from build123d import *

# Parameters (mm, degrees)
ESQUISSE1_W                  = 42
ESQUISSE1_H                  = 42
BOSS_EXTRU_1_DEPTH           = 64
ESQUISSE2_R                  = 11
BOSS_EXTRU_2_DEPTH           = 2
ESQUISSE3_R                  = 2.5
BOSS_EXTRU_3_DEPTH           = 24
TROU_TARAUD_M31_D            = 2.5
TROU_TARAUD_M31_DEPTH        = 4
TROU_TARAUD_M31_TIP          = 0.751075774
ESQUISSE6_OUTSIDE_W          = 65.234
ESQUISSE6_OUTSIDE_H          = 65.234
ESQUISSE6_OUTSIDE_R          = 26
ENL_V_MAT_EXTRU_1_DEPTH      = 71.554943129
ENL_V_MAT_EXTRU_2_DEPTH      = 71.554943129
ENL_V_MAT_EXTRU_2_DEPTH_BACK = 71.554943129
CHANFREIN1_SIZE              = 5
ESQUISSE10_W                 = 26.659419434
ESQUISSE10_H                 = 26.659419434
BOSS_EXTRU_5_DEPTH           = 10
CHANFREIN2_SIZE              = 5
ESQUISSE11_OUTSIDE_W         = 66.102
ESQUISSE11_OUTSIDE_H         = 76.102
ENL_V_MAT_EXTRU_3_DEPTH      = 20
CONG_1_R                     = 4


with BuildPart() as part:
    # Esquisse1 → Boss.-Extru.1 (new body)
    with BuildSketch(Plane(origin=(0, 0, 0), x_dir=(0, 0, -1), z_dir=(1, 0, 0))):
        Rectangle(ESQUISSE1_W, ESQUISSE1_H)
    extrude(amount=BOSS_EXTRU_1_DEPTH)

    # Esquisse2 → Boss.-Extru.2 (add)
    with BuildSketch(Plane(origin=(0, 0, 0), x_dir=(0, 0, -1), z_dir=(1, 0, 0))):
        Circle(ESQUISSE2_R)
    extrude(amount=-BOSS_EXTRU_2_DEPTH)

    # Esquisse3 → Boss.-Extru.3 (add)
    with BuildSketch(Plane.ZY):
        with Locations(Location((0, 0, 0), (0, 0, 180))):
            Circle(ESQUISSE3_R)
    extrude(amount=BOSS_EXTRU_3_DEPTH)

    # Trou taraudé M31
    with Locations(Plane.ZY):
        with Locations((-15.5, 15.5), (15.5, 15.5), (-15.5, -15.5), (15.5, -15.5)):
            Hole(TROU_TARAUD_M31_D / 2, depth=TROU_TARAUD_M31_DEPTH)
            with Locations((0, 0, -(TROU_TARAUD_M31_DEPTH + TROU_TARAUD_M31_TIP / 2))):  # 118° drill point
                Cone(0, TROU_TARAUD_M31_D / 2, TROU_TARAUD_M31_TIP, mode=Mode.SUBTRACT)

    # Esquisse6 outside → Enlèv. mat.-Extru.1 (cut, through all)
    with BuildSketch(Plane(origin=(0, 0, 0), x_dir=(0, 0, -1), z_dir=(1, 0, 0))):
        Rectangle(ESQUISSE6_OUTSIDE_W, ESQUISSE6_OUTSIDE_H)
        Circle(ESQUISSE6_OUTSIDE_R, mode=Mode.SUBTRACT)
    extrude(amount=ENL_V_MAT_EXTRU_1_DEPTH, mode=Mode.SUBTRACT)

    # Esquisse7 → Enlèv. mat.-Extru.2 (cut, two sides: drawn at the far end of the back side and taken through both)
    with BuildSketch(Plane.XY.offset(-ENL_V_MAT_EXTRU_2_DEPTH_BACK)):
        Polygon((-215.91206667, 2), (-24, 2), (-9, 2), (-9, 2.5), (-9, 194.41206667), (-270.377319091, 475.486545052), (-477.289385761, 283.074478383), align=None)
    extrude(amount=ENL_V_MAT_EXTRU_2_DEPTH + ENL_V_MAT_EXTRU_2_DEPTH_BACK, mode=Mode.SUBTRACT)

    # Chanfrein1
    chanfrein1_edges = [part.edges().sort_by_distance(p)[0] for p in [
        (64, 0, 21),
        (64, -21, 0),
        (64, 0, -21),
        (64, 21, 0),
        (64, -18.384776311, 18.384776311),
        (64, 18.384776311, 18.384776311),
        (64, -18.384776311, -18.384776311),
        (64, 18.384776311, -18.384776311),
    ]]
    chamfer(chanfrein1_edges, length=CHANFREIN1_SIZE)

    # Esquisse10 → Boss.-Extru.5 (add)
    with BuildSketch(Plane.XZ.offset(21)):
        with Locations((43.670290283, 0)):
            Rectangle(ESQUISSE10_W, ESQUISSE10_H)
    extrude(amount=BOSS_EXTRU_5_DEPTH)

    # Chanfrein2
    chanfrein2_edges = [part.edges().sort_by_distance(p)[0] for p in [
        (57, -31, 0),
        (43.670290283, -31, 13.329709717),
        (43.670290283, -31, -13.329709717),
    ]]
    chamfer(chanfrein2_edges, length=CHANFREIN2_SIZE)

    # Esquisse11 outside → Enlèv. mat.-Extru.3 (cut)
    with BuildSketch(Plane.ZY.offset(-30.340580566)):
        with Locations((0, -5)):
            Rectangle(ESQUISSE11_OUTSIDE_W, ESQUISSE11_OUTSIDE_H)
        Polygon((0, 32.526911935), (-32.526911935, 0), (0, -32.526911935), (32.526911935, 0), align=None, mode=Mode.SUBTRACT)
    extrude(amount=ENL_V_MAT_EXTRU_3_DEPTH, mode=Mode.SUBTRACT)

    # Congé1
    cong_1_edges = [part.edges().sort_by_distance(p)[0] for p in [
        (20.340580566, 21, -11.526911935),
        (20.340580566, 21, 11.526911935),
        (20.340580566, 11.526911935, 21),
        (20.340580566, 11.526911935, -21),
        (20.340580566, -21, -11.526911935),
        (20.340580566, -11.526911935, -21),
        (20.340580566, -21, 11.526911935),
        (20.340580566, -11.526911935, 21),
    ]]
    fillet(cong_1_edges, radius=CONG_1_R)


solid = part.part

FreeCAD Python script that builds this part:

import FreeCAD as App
import Part
import Sketcher
from FreeCAD import Vector


def edges_at(feature, points):
    """Names of the edges that pass closest to the given points."""
    edges = feature.Shape.Edges
    near = lambda p: min(range(len(edges)), key=lambda i: edges[i].distToShape(Part.Vertex(*p))[0])
    return sorted({f"Edge{near(p) + 1}" for p in points})


def add_polygon(sketch, points):
    """Adds a closed chain of lines whose ends are joined by coincident constraints."""
    first, n = sketch.GeometryCount, len(points)
    for a, b in zip(points, points[1:] + points[:1]):
        sketch.addGeometry(Part.LineSegment(App.Vector(*a, 0), App.Vector(*b, 0)), False)
    for i in range(n):
        sketch.addConstraint(Sketcher.Constraint("Coincident", first + i, 2, first + (i + 1) % n, 1))

doc = App.newDocument("Part")
body = doc.addObject("PartDesign::Body", "Body")

sketch1 = doc.addObject("Sketcher::SketchObject", "Sketch")
body.addObject(sketch1)
sketch1.AttachmentSupport = (doc.YZ_Plane, [""])
sketch1.MapMode = "FlatFace"
add_polygon(sketch1, [(21, 21), (-21, 21), (-21, -21), (21, -21)])
sketch1.addConstraint([
    Sketcher.Constraint("Horizontal", 0),
    Sketcher.Constraint("Vertical", 1),
    Sketcher.Constraint("Horizontal", 2),
    Sketcher.Constraint("Vertical", 3),
    Sketcher.Constraint("Symmetric", 0, 2, 2, 2, -1, 1),
    Sketcher.Constraint("Equal", 2, 1),
    Sketcher.Constraint("DistanceX", 0, 2, 0, 1, 42.0),
])
pad1 = doc.addObject("PartDesign::Pad", "Pad")
body.addObject(pad1)
pad1.Profile = sketch1
pad1.Length = 64

sketch2 = doc.addObject("Sketcher::SketchObject", "Sketch001")
body.addObject(sketch2)
sketch2.AttachmentSupport = (doc.YZ_Plane, [""])
sketch2.MapMode = "FlatFace"
sketch2.addGeometry(Part.Circle(Vector(0, 0, 0), Vector(0, 0, 1), 11), False)
sketch2.addConstraint([
    Sketcher.Constraint("Coincident", 0, 3, -1, 1),
    Sketcher.Constraint("Diameter", 0, 22.0),
])
pad2 = doc.addObject("PartDesign::Pad", "Pad001")
body.addObject(pad2)
pad2.Profile = sketch2
pad2.Length = 2
pad2.Reversed = True

sketch3 = doc.addObject("Sketcher::SketchObject", "Sketch002")
body.addObject(sketch3)
sketch3.AttachmentSupport = (doc.YZ_Plane, [""])
sketch3.MapMode = "FlatFace"
sketch3.addGeometry(Part.Circle(Vector(0, 0, 0), Vector(0, 0, 1), 2.5), False)
sketch3.addConstraint([
    Sketcher.Constraint("Coincident", 0, 3, -1, 1),
    Sketcher.Constraint("Diameter", 0, 5.0),
])
pad3 = doc.addObject("PartDesign::Pad", "Pad002")
body.addObject(pad3)
pad3.Profile = sketch3
pad3.Length = 24
pad3.Reversed = True

sketch4 = doc.addObject("Sketcher::SketchObject", "Sketch003")
body.addObject(sketch4)
sketch4.AttachmentSupport = (doc.YZ_Plane, [""])
sketch4.MapMode = "FlatFace"
sketch4.addGeometry([
    Part.Circle(Vector(15.5, -15.5, 0), Vector(0, 0, 1), 1.25),
    Part.Circle(Vector(15.5, 15.5, 0), Vector(0, 0, 1), 1.25),
    Part.Circle(Vector(-15.5, -15.5, 0), Vector(0, 0, 1), 1.25),
    Part.Circle(Vector(-15.5, 15.5, 0), Vector(0, 0, 1), 1.25),
], False)
sketch4.addConstraint([
    Sketcher.Constraint("Equal", 0, 1),
    Sketcher.Constraint("Equal", 1, 2),
    Sketcher.Constraint("Equal", 2, 3),
    Sketcher.Constraint("Symmetric", 1, 3, 2, 3, -1, 1),
    Sketcher.Constraint("Symmetric", 0, 3, 3, 3, -1, 1),
    Sketcher.Constraint("Symmetric", 0, 3, 2, 3, -2),
    Sketcher.Constraint("Diameter", 0, 2.5),
    Sketcher.Constraint("DistanceY", 0, 3, 1, 3, 31.0),
    Sketcher.Constraint("DistanceX", 2, 3, 0, 3, 31.0),
])
doc.recompute()
hole = doc.addObject("PartDesign::Hole", "Hole")
body.addObject(hole)
hole.Profile = sketch4
hole.ThreadType = "None"
hole.Diameter = 2.5
hole.DepthType = "Dimension"
hole.Depth = 4
hole.DrillPoint = "Angled"
hole.DrillPointAngle = 118
hole.Reversed = True

sketch5 = doc.addObject("Sketcher::SketchObject", "Sketch004")
body.addObject(sketch5)
sketch5.AttachmentSupport = (doc.YZ_Plane, [""])
sketch5.MapMode = "FlatFace"
add_polygon(sketch5, [(32.617, 32.617), (-32.617, 32.617), (-32.617, -32.617), (32.617, -32.617)])
sketch5.addGeometry(Part.Circle(Vector(0, 0, 0), Vector(0, 0, 1), 26), False)
sketch5.addConstraint([
    Sketcher.Constraint("Horizontal", 0),
    Sketcher.Constraint("Vertical", 1),
    Sketcher.Constraint("Horizontal", 2),
    Sketcher.Constraint("Vertical", 3),
    Sketcher.Constraint("Coincident", 4, 3, -1, 1),
    Sketcher.Constraint("Symmetric", 0, 2, 2, 2, -1, 1),
    Sketcher.Constraint("Equal", 2, 1),
    Sketcher.Constraint("Diameter", 4, 52.0),
    Sketcher.Constraint("DistanceX", 0, 2, 0, 1, 65.234),
])
pocket1 = doc.addObject("PartDesign::Pocket", "Pocket")
body.addObject(pocket1)
pocket1.Profile = sketch5
pocket1.Type = "ThroughAll"
pocket1.Reversed = True

sketch6 = doc.addObject("Sketcher::SketchObject", "Sketch005")
body.addObject(sketch6)
sketch6.AttachmentSupport = (doc.XY_Plane, [""])
sketch6.MapMode = "FlatFace"
add_polygon(sketch6, [(-215.912067, 2), (-9, 2), (-9, 194.412067), (-270.377319, 475.486545), (-477.289386, 283.074478)])
sketch6.addConstraint([
    Sketcher.Constraint("Horizontal", 0),
    Sketcher.Constraint("Vertical", 1),
    Sketcher.Constraint("Perpendicular", 2, 3),
    Sketcher.Constraint("Perpendicular", 3, 4),
    Sketcher.Constraint("Equal", 2, 4),
    Sketcher.Constraint("DistanceX", 0, 2, -1, 1, 9.0),
    Sketcher.Constraint("DistanceY", -1, 1, 0, 2, 2.0),
    Sketcher.Constraint("DistanceX", 0, 1, 0, 2, 206.912067),
    Sketcher.Constraint("DistanceY", 1, 1, 1, 2, 192.412067),
    Sketcher.Constraint("DistanceX", 2, 2, -1, 1, 270.377319),
])
pocket2 = doc.addObject("PartDesign::Pocket", "Pocket001")
body.addObject(pocket2)
pocket2.Profile = sketch6
pocket2.Type = "ThroughAll"
pocket2.Midplane = True
doc.recompute()

chamfer = doc.addObject("PartDesign::Chamfer", "Chamfer")
body.addObject(chamfer)
chamfer.Base = (pocket2, edges_at(pocket2, [
    (64, 0, 21),
    (64, -21, 0),
    (64, 0, -21),
    (64, 21, 0),
    (64, -18.385, 18.385),
    (64, 18.385, 18.385),
    (64, -18.385, -18.385),
    (64, 18.385, -18.385),
]))
chamfer.Size = 5

sketch7 = doc.addObject("Sketcher::SketchObject", "Sketch006")
body.addObject(sketch7)
sketch7.AttachmentSupport = (doc.XZ_Plane, [""])
sketch7.MapMode = "FlatFace"
sketch7.AttachmentOffset = App.Placement(Vector(0, 0, 21), App.Rotation())
add_polygon(sketch7, [(30.340581, 13.32971), (30.340581, -13.32971), (57, -13.32971), (57, 13.32971)])
sketch7.addConstraint([
    Sketcher.Constraint("Vertical", 0),
    Sketcher.Constraint("Horizontal", 1),
    Sketcher.Constraint("Vertical", 2),
    Sketcher.Constraint("Horizontal", 3),
    Sketcher.Constraint("Equal", 3, 0),
    Sketcher.Constraint("DistanceX", -1, 1, 1, 2, 57.0),
    Sketcher.Constraint("DistanceX", 1, 1, 1, 2, 26.659419),
    Sketcher.Constraint("DistanceY", 0, 2, -1, 1, 13.32971),
])
pad4 = doc.addObject("PartDesign::Pad", "Pad003")
body.addObject(pad4)
pad4.Profile = sketch7
pad4.Length = 10
doc.recompute()

chamfer2 = doc.addObject("PartDesign::Chamfer", "Chamfer001")
body.addObject(chamfer2)
chamfer2.Base = (pad4, edges_at(pad4, [(57, -31, 0), (43.67, -31, 13.33), (43.67, -31, -13.33)]))
chamfer2.Size = 5

sketch8 = doc.addObject("Sketcher::SketchObject", "Sketch007")
body.addObject(sketch8)
sketch8.AttachmentSupport = (doc.YZ_Plane, [""])
sketch8.MapMode = "FlatFace"
sketch8.AttachmentOffset = App.Placement(Vector(0, 0, 30.340581), App.Rotation())
add_polygon(sketch8, [(33.051, -33.051), (-43.051, -33.051), (-43.051, 33.051), (33.051, 33.051)])
add_polygon(sketch8, [(0, -32.526912), (32.526912, 0), (0, 32.526912), (-32.526912, 0)])
sketch8.addConstraint([
    Sketcher.Constraint("Horizontal", 0),
    Sketcher.Constraint("Vertical", 1),
    Sketcher.Constraint("Horizontal", 2),
    Sketcher.Constraint("Vertical", 3),
    Sketcher.Constraint("Symmetric", 4, 2, 6, 2, -1, 1),
    Sketcher.Constraint("Symmetric", 5, 2, 7, 2, -1, 1),
    Sketcher.Constraint("PointOnObject", 4, 2, -1),
    Sketcher.Constraint("PointOnObject", 5, 2, -2),
    Sketcher.Constraint("Perpendicular", 4, 5),
    Sketcher.Constraint("Distance", 4, 46.0),
    Sketcher.Constraint("DistanceX", 0, 2, 0, 1, 76.102),
    Sketcher.Constraint("DistanceY", 1, 1, 1, 2, 66.102),
    Sketcher.Constraint("DistanceX", 0, 2, -1, 1, 43.051),
    Sketcher.Constraint("DistanceY", 0, 2, -1, 1, 33.051),
])
pocket3 = doc.addObject("PartDesign::Pocket", "Pocket002")
body.addObject(pocket3)
pocket3.Profile = sketch8
pocket3.Length = 20
doc.recompute()

fillet = doc.addObject("PartDesign::Fillet", "Fillet")
body.addObject(fillet)
fillet.Base = (pocket3, edges_at(pocket3, [
    (20.341, 21, -11.527),
    (20.341, 21, 11.527),
    (20.341, 11.527, 21),
    (20.341, 11.527, -21),
    (20.341, -21, -11.527),
    (20.341, -11.527, -21),
    (20.341, -21, 11.527),
    (20.341, -11.527, 21),
]))
fillet.Radius = 4

doc.recompute()
